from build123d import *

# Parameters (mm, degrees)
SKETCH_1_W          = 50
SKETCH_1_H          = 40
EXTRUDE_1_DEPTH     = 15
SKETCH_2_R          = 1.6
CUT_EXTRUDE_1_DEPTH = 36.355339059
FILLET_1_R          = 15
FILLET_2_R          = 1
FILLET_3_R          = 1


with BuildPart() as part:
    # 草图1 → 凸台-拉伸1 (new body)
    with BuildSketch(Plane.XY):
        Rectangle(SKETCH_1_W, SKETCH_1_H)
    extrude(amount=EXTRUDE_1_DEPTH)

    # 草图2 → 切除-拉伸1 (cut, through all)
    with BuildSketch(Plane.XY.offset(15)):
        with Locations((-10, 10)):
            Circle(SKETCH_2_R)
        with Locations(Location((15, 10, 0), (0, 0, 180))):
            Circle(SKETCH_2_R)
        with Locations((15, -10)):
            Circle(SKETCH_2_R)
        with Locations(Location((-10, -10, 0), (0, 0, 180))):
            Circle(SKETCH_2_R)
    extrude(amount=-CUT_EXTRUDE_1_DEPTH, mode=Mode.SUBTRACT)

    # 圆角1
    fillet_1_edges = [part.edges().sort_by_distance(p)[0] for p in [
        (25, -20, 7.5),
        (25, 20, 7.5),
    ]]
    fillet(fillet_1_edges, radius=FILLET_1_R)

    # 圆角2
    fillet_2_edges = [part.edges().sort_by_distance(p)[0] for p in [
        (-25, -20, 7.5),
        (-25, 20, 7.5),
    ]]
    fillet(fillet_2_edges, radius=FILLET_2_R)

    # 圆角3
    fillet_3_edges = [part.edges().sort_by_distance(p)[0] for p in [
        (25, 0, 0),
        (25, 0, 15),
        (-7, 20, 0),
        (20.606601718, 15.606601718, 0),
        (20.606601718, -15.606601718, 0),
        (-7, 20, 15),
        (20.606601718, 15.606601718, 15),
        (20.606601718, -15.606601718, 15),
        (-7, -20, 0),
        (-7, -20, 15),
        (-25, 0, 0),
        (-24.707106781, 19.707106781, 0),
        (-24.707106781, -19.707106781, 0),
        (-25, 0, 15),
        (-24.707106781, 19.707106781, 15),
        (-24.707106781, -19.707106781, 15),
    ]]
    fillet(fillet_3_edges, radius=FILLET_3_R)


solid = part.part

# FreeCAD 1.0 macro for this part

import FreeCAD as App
import Part
import Sketcher
from FreeCAD import Vector


def edges_at(feature, points):
    """Names of the edges that pass closest to the given points."""
    edges = feature.Shape.Edges
    near = lambda p: min(range(len(edges)), key=lambda i: edges[i].distToShape(Part.Vertex(*p))[0])
    return sorted({f"Edge{near(p) + 1}" for p in points})


def add_polygon(sketch, points):
    """Adds a closed chain of lines whose ends are joined by coincident constraints."""
    first, n = sketch.GeometryCount, len(points)
    for a, b in zip(points, points[1:] + points[:1]):
        sketch.addGeometry(Part.LineSegment(App.Vector(*a, 0), App.Vector(*b, 0)), False)
    for i in range(n):
        sketch.addConstraint(Sketcher.Constraint("Coincident", first + i, 2, first + (i + 1) % n, 1))

doc = App.newDocument("Part")
body = doc.addObject("PartDesign::Body", "Body")

# Sketch on XY plane
sketch1 = doc.addObject("Sketcher::SketchObject", "Sketch")
body.addObject(sketch1)
sketch1.AttachmentSupport = (doc.XY_Plane, [""])
sketch1.MapMode = "FlatFace"
add_polygon(sketch1, [(-25, 20), (-25, -20), (25, -20), (25, 20)])  # lines 0-3
sketch1.addConstraint([
    Sketcher.Constraint("Vertical", 0),
    Sketcher.Constraint("Horizontal", 1),
    Sketcher.Constraint("Vertical", 2),
    Sketcher.Constraint("Horizontal", 3),
    Sketcher.Constraint("Symmetric", 0, 2, 2, 2, -1, 1),
    Sketcher.Constraint("DistanceX", 1, 1, 1, 2, 50.0),
    Sketcher.Constraint("DistanceY", 0, 2, 0, 1, 40.0),
])
pad1 = doc.addObject("PartDesign::Pad", "Pad")
body.addObject(pad1)
pad1.Profile = sketch1
pad1.Length = 15

# Sketch on XY plane
sketch2 = doc.addObject("Sketcher::SketchObject", "Sketch001")
body.addObject(sketch2)
sketch2.AttachmentSupport = (doc.XY_Plane, [""])
sketch2.MapMode = "FlatFace"
sketch2.AttachmentOffset = App.Placement(Vector(0, 0, 15), App.Rotation())
sketch2.addGeometry([
    Part.Circle(Vector(-10, 10, 0), Vector(0, 0, 1), 1.6),
    Part.Circle(Vector(15, 10, 0), Vector(0, 0, 1), 1.6),
    Part.Circle(Vector(15, -10, 0), Vector(0, 0, 1), 1.6),
    Part.Circle(Vector(-10, -10, 0), Vector(0, 0, 1), 1.6),
], False)
sketch2.addConstraint([
    Sketcher.Constraint("Equal", 0, 1),
    Sketcher.Constraint("Equal", 1, 2),
    Sketcher.Constraint("Equal", 2, 3),
    Sketcher.Constraint("Symmetric", 1, 3, 2, 3, -1),
    Sketcher.Constraint("Symmetric", 0, 3, 3, 3, -1),
    Sketcher.Constraint("Horizontal", 0, 3, 1, 3),
    Sketcher.Constraint("Diameter", 0, 3.2),
    Sketcher.Constraint("DistanceX", 0, 3, -1, 1, 10.0),
    Sketcher.Constraint("DistanceY", -1, 1, 0, 3, 10.0),
    Sketcher.Constraint("DistanceX", -1, 1, 1, 3, 15.0),
])
pocket1 = doc.addObject("PartDesign::Pocket", "Pocket")
body.addObject(pocket1)
pocket1.Profile = sketch2
pocket1.Type = "ThroughAll"
doc.recompute()

fillet = doc.addObject("PartDesign::Fillet", "Fillet")
body.addObject(fillet)
fillet.Base = (pocket1, edges_at(pocket1, [(25, -20, 7.5), (25, 20, 7.5)]))
fillet.Radius = 15
doc.recompute()

fillet2 = doc.addObject("PartDesign::Fillet", "Fillet001")
body.addObject(fillet2)
fillet2.Base = (fillet, edges_at(fillet, [(-25, -20, 7.5), (-25, 20, 7.5)]))
fillet2.Radius = 1
doc.recompute()

fillet3 = doc.addObject("PartDesign::Fillet", "Fillet002")
body.addObject(fillet3)
fillet3.Base = (fillet2, edges_at(fillet2, [
    (25, 0, 0),
    (25, 0, 15),
    (-7, 20, 0),
    (20.607, 15.607, 0),
    (20.607, -15.607, 0),
    (-7, 20, 15),
    (20.607, 15.607, 15),
    (20.607, -15.607, 15),
    (-7, -20, 0),
    (-7, -20, 15),
    (-25, 0, 0),
    (-24.707, 19.707, 0),
    (-24.707, -19.707, 0),
    (-25, 0, 15),
    (-24.707, 19.707, 15),
    (-24.707, -19.707, 15),
]))
fillet3.Radius = 1

doc.recompute()
